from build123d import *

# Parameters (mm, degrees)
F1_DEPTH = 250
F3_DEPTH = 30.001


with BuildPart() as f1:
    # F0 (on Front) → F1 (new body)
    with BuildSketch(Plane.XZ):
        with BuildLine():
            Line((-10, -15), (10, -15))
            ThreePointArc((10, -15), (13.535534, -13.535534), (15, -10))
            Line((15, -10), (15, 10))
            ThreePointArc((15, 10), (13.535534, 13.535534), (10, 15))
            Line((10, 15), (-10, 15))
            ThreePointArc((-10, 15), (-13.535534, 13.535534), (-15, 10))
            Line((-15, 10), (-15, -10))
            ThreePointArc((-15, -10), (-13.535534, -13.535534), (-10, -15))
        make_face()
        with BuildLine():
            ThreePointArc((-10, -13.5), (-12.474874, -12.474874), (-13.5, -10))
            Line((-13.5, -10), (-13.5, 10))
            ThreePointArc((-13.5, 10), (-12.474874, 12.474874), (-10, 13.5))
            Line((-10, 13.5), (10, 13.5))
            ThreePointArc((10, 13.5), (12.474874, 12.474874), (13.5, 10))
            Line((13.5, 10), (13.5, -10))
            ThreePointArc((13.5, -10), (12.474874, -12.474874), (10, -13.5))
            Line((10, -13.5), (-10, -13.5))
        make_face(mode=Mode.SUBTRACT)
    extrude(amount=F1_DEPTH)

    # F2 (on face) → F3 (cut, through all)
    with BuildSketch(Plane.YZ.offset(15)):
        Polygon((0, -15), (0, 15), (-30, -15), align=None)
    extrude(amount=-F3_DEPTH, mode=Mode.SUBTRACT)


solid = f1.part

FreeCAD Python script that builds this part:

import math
import FreeCAD as App
import Part
import Sketcher
from FreeCAD import Vector

doc = App.newDocument("Part")
params = doc.addObject("Spreadsheet::Sheet", "Params")
for row, (alias, value) in enumerate([
    ("sketch1_radius", "5 mm"),
    ("sketch1_radius2", "3.499999 mm"),
    ("sketch1_width", "20 mm"),
    ("pad1_length", "250 mm"),
    ("sketch2_width", "30 mm"),
], start=1):
    params.set(f"A{row}", alias)
    params.set(f"B{row}", "=" + value)
    params.setAlias(f"B{row}", alias)

body = doc.addObject("PartDesign::Body", "Body")

# Sketch on XZ plane
sketch1 = body.newObject("Sketcher::SketchObject", "Sketch")
sketch1.AttachmentSupport = (doc.getObject("XZ_Plane"), [""])
sketch1.MapMode = "FlatFace"
sketch1.addGeometry([
    Part.LineSegment(Vector(-10, -15, 0), Vector(10, -15, 0)),  # 0
    Part.ArcOfCircle(Part.Circle(Vector(10, -10, 0), Vector(0, 0, 1), 5), math.radians(-90), math.radians(0)),  # 1
    Part.LineSegment(Vector(15, -10, 0), Vector(15, 10, 0)),  # 2
    Part.ArcOfCircle(Part.Circle(Vector(10, 10, 0), Vector(0, 0, 1), 5), math.radians(0), math.radians(90)),  # 3
    Part.LineSegment(Vector(10, 15, 0), Vector(-10, 15, 0)),  # 4
    Part.ArcOfCircle(Part.Circle(Vector(-10, 10, 0), Vector(0, 0, 1), 5), math.radians(90), math.radians(180)),  # 5
    Part.LineSegment(Vector(-15, 10, 0), Vector(-15, -10, 0)),  # 6
    Part.ArcOfCircle(Part.Circle(Vector(-10, -10, 0), Vector(0, 0, 1), 5), math.radians(180), math.radians(270)),  # 7
    Part.LineSegment(Vector(10, -13.5, 0), Vector(-10, -13.5, 0)),  # 8
    Part.ArcOfCircle(Part.Circle(Vector(-10, -10, 0), Vector(0, 0, 1), 3.5), math.radians(180), math.radians(270)),  # 9
    Part.LineSegment(Vector(-13.5, -10, 0), Vector(-13.5, 10, 0)),  # 10
    Part.ArcOfCircle(Part.Circle(Vector(-10, 10, 0), Vector(0, 0, 1), 3.5), math.radians(90), math.radians(180)),  # 11
    Part.LineSegment(Vector(-10, 13.5, 0), Vector(10, 13.5, 0)),  # 12
    Part.ArcOfCircle(Part.Circle(Vector(10, 10, 0), Vector(0, 0, 1), 3.5), math.radians(0), math.radians(90)),  # 13
    Part.LineSegment(Vector(13.5, 10, 0), Vector(13.5, -10, 0)),  # 14
    Part.ArcOfCircle(Part.Circle(Vector(10, -10, 0), Vector(0, 0, 1), 3.5), math.radians(-90), math.radians(0)),  # 15
], False)
sketch1.addConstraint([
    Sketcher.Constraint("Tangent", 0, 2, 1, 1),
    Sketcher.Constraint("Tangent", 1, 2, 2, 1),
    Sketcher.Constraint("Tangent", 2, 2, 3, 1),
    Sketcher.Constraint("Tangent", 3, 2, 4, 1),
    Sketcher.Constraint("Tangent", 4, 2, 5, 1),
    Sketcher.Constraint("Tangent", 5, 2, 6, 1),
    Sketcher.Constraint("Tangent", 6, 2, 7, 1),
    Sketcher.Constraint("Tangent", 7, 2, 0, 1),
    Sketcher.Constraint("Tangent", 8, 2, 9, 2),
    Sketcher.Constraint("Tangent", 9, 1, 10, 1),
    Sketcher.Constraint("Tangent", 10, 2, 11, 2),
    Sketcher.Constraint("Tangent", 11, 1, 12, 1),
    Sketcher.Constraint("Tangent", 12, 2, 13, 2),
    Sketcher.Constraint("Tangent", 13, 1, 14, 1),
    Sketcher.Constraint("Tangent", 14, 2, 15, 2),
    Sketcher.Constraint("Tangent", 15, 1, 8, 1),
    Sketcher.Constraint("Horizontal", 0),
    Sketcher.Constraint("Vertical", 2),
    Sketcher.Constraint("Horizontal", 4),
    Sketcher.Constraint("Vertical", 6),
    Sketcher.Constraint("Horizontal", 8),
    Sketcher.Constraint("Vertical", 10),
    Sketcher.Constraint("Horizontal", 12),
    Sketcher.Constraint("Vertical", 14),
    Sketcher.Constraint("Coincident", 9, 3, 7, 3),
    Sketcher.Constraint("Coincident", 11, 3, 5, 3),
    Sketcher.Constraint("Coincident", 13, 3, 3, 3),
    Sketcher.Constraint("Equal", 1, 3),
    Sketcher.Constraint("Equal", 3, 5),
    Sketcher.Constraint("Equal", 5, 7),
    Sketcher.Constraint("Equal", 13, 15),
    Sketcher.Constraint("Symmetric", 1, 3, 5, 3, -1, 1),
    Sketcher.Constraint("Equal", 12, 2),
    Sketcher.Constraint("Radius", 1, 5.0),
    Sketcher.Constraint("Radius", 9, 3.499999),
    Sketcher.Constraint("DistanceX", 0, 1, 0, 2, 20.0),
])
sketch1.setExpression("Constraints[33]", "Params.sketch1_radius")
sketch1.setExpression("Constraints[34]", "Params.sketch1_radius2")
sketch1.setExpression("Constraints[35]", "Params.sketch1_width")
pad1 = body.newObject("PartDesign::Pad", "Pad")
pad1.Profile = sketch1
pad1.setExpression("Length", "Params.pad1_length")

# Sketch on YZ plane
sketch2 = body.newObject("Sketcher::SketchObject", "Sketch001")
sketch2.AttachmentSupport = (doc.getObject("YZ_Plane"), [""])
sketch2.MapMode = "FlatFace"
sketch2.AttachmentOffset = App.Placement(Vector(0, 0, 15), App.Rotation())
sketch2.addGeometry([
    Part.LineSegment(Vector(0, -15, 0), Vector(0, 15, 0)),
    Part.LineSegment(Vector(0, 15, 0), Vector(-30, -15, 0)),
    Part.LineSegment(Vector(-30, -15, 0), Vector(0, -15, 0)),
], False)
sketch2.addConstraint([
    Sketcher.Constraint("Coincident", 0, 2, 1, 1),
    Sketcher.Constraint("Coincident", 1, 2, 2, 1),
    Sketcher.Constraint("Coincident", 2, 2, 0, 1),
    Sketcher.Constraint("Vertical", 0),
    Sketcher.Constraint("Horizontal", 2),
    Sketcher.Constraint("Symmetric", 0, 2, 2, 2, -1, 1),
    Sketcher.Constraint("Equal", 2, 0),
    Sketcher.Constraint("DistanceX", 2, 1, 2, 2, 30.0),
])
sketch2.setExpression("Constraints[7]", "Params.sketch2_width")
pocket1 = body.newObject("PartDesign::Pocket", "Pocket")
pocket1.Profile = sketch2
pocket1.Type = "ThroughAll"

doc.recompute()
